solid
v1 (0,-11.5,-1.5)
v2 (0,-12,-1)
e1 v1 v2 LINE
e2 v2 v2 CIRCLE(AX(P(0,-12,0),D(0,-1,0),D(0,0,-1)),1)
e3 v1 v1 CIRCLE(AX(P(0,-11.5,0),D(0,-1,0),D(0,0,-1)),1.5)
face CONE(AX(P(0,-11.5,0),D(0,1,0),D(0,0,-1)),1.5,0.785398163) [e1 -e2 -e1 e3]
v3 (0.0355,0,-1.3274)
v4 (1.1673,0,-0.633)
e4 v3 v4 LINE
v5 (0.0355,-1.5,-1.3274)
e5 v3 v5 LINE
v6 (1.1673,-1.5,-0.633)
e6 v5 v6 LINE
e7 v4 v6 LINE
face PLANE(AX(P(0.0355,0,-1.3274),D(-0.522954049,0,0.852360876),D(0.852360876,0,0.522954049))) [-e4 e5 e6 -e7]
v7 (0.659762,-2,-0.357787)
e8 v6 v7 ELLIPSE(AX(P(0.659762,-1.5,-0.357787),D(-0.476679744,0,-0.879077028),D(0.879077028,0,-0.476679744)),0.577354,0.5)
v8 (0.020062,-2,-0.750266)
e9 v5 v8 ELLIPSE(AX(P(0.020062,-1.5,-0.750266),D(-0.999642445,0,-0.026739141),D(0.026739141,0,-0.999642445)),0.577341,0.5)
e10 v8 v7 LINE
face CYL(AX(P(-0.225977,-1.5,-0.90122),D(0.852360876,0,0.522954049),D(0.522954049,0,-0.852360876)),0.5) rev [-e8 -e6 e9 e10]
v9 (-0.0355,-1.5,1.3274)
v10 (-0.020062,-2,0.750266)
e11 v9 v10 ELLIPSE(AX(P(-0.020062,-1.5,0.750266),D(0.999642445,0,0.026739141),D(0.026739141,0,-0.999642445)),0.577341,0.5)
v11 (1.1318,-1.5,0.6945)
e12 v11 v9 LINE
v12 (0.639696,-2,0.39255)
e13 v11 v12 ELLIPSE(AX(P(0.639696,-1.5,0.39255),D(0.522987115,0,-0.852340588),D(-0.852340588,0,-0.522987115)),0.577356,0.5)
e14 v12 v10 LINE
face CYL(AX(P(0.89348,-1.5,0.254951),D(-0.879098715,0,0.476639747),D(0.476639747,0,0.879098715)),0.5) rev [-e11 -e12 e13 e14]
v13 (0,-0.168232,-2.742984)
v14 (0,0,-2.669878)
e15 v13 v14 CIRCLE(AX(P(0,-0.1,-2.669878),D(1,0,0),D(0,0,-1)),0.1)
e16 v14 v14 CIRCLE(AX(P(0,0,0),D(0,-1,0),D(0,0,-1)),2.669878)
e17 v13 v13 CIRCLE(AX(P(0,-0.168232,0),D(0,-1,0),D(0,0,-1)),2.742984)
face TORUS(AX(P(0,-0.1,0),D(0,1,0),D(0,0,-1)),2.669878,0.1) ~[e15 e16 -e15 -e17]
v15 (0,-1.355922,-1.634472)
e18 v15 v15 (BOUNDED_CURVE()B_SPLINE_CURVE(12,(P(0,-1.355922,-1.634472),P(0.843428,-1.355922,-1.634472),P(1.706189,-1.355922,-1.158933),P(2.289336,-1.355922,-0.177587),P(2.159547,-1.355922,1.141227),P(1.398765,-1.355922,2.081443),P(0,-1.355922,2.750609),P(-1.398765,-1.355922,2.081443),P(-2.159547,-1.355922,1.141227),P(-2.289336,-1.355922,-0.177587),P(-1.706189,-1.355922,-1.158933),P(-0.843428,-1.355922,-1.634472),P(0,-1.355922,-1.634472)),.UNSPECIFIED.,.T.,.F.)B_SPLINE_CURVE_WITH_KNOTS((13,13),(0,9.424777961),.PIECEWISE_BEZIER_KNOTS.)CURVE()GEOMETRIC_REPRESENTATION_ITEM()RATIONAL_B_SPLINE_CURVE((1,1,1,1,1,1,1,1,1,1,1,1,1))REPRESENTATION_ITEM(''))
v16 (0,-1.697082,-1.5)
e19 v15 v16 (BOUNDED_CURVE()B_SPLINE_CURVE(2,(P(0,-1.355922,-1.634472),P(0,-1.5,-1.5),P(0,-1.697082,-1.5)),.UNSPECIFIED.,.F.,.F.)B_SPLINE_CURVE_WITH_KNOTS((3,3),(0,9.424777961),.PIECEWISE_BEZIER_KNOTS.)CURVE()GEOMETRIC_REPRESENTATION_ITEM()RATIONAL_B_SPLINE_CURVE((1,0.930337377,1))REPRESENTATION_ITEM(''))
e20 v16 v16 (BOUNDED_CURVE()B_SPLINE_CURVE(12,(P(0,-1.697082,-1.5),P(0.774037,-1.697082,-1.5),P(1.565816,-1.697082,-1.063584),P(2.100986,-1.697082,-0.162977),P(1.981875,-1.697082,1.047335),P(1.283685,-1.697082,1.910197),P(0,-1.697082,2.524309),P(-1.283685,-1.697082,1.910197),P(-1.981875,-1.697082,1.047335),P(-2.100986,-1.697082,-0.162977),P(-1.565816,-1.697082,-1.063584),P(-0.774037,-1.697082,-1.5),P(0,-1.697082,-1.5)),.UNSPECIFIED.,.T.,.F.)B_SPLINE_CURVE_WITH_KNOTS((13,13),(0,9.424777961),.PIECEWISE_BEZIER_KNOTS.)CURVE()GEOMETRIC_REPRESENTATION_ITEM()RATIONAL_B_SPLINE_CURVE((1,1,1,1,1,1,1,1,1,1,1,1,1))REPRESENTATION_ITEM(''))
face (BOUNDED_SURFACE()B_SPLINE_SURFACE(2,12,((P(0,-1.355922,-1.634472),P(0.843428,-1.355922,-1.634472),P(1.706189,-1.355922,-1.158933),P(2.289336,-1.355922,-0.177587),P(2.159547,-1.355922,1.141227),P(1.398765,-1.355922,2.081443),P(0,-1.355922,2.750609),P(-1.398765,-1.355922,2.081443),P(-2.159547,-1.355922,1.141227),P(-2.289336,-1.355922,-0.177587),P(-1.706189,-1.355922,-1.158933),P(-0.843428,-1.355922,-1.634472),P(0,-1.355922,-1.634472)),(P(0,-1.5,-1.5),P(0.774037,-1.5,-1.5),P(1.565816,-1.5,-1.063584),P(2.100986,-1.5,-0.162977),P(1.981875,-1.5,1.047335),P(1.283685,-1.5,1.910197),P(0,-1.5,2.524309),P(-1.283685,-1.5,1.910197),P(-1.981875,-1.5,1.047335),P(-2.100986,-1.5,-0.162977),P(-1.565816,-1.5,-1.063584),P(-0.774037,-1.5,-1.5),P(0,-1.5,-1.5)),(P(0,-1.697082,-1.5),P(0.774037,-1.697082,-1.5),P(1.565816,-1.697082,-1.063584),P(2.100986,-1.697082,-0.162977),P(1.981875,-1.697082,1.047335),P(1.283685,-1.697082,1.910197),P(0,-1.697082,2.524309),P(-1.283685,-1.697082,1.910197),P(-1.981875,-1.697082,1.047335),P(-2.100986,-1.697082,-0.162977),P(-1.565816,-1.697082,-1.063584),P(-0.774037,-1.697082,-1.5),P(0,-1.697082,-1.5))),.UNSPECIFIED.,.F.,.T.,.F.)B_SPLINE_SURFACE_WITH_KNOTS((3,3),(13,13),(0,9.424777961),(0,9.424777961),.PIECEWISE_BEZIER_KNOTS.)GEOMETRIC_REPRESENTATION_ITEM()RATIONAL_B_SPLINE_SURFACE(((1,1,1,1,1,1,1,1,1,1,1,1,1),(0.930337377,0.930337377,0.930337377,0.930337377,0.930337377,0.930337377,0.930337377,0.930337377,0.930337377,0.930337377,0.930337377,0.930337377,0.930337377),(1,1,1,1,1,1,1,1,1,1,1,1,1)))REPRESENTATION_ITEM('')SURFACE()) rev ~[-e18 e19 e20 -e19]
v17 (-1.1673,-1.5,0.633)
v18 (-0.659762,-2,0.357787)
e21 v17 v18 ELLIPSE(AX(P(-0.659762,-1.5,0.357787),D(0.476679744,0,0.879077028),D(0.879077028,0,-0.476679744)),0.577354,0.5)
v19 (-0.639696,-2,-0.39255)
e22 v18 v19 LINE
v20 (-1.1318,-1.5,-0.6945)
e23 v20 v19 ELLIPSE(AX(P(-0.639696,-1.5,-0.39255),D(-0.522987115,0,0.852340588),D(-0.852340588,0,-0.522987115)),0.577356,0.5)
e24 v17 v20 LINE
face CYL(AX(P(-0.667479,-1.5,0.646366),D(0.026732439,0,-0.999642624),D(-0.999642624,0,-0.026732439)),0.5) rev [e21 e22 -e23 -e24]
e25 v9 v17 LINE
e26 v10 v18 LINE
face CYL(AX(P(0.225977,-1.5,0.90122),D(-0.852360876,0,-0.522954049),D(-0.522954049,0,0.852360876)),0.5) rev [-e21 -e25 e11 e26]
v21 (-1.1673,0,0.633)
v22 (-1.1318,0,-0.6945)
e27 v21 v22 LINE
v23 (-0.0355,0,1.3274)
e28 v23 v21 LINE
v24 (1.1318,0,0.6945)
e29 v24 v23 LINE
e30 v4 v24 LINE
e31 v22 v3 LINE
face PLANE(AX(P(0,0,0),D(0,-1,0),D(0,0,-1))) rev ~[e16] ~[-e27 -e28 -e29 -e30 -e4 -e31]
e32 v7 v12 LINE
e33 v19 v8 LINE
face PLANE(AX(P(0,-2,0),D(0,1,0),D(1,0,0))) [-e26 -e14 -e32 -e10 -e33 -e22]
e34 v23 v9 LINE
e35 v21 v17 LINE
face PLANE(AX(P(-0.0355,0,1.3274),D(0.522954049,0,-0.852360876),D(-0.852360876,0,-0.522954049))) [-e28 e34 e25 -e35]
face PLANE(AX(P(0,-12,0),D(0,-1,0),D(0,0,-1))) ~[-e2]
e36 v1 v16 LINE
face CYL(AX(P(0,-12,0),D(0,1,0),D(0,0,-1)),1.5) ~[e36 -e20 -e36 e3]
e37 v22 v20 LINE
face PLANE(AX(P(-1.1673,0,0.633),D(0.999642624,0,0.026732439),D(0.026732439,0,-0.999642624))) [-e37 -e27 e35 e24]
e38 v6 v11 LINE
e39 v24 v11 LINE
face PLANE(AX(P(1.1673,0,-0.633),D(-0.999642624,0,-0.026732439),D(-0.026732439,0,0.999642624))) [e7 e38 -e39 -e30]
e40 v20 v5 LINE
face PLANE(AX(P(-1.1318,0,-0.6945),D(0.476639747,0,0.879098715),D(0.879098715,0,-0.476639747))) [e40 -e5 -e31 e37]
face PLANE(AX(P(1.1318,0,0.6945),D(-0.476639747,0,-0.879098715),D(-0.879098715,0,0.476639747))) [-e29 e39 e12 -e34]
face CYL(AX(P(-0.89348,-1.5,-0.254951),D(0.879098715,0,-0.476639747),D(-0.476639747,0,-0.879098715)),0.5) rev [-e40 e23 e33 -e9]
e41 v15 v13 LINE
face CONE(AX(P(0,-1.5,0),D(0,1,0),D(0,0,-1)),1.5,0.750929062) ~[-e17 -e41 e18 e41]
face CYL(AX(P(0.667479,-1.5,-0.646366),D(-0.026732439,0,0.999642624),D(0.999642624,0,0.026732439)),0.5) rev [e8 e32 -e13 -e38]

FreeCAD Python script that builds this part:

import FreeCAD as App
import Part
import Sketcher
Q = App.Units.Quantity


def edges_at(feature, points):
    """Names of the edges that pass closest to the given points."""
    edges = feature.Shape.Edges
    near = lambda p: min(range(len(edges)), key=lambda i: edges[i].distToShape(Part.Vertex(*p))[0])
    return sorted({f"Edge{near(p) + 1}" for p in points})

doc = App.newDocument("Part")
params = doc.addObject("Spreadsheet::Sheet", "Params")
for row, (alias, value) in enumerate([
    ("sketch1_width", "12 mm"),
    ("sketch1_height", "1.5 mm"),
    ("sketch1_height2", "2.9 mm"),
    ("revolution_angle", "360 deg"),
    ("pocket1_length", "2 mm"),
    ("fillet_radius", "0.5 mm"),
    ("fillet2_radius", "0.5 mm"),
    ("fillet3_radius", "0.1 mm"),
    ("chamfer_size", "0.5 mm"),
], start=1):
    params.set(f"A{row}", alias)
    params.set(f"B{row}", "=" + value)
    params.setAlias(f"B{row}", alias)

body = doc.addObject("PartDesign::Body", "Body")

# Sketch on YZ plane
sketch1 = body.newObject("Sketcher::SketchObject", "Sketch")
sketch1.AttachmentSupport = (doc.getObject("YZ_Plane"), [""])
sketch1.MapMode = "FlatFace"
sketch1.addGeometry(Part.LineSegment(App.Vector(-1.5, -1.5, 0), App.Vector(0, -2.9, 0)), False)
sketch1.addGeometry(Part.LineSegment(App.Vector(0, -2.9, 0), App.Vector(0, 0, 0)), False)
sketch1.addGeometry(Part.LineSegment(App.Vector(0, 0, 0), App.Vector(-12, 0, 0)), False)
sketch1.addGeometry(Part.LineSegment(App.Vector(-12, 0, 0), App.Vector(-12, -1.5, 0)), False)
sketch1.addGeometry(Part.LineSegment(App.Vector(-12, -1.5, 0), App.Vector(-1.5, -1.5, 0)), False)
sketch1.addConstraint(Sketcher.Constraint("Coincident", 0, 2, 1, 1))
sketch1.addConstraint(Sketcher.Constraint("Coincident", 1, 2, 2, 1))
sketch1.addConstraint(Sketcher.Constraint("Coincident", 2, 2, 3, 1))
sketch1.addConstraint(Sketcher.Constraint("Coincident", 3, 2, 4, 1))
sketch1.addConstraint(Sketcher.Constraint("Coincident", 4, 2, 0, 1))
sketch1.addConstraint(Sketcher.Constraint("Vertical", 1))
sketch1.addConstraint(Sketcher.Constraint("Horizontal", 2))
sketch1.addConstraint(Sketcher.Constraint("Vertical", 3))
sketch1.addConstraint(Sketcher.Constraint("Horizontal", 4))
sketch1.addConstraint(Sketcher.Constraint("Coincident", 1, 2, -1, 1))
sketch1.addConstraint(Sketcher.Constraint("DistanceX", 2, 2, 2, 1, Q("12 mm")))
sketch1.addConstraint(Sketcher.Constraint("DistanceY", 3, 2, 3, 1, Q("1.5 mm")))
sketch1.addConstraint(Sketcher.Constraint("DistanceX", 4, 2, -1, 1, Q("1.5 mm")))
sketch1.addConstraint(Sketcher.Constraint("DistanceY", 1, 1, 1, 2, Q("2.9 mm")))
sketch1.setExpression("Constraints[10]", "Params.sketch1_width")
sketch1.setExpression("Constraints[11]", "Params.sketch1_height")
sketch1.setExpression("Constraints[13]", "Params.sketch1_height2")
revolution = body.newObject("PartDesign::Revolution", "Revolution")
revolution.Profile = sketch1
revolution.ReferenceAxis = (sketch1, ["H_Axis"])
revolution.setExpression("Angle", "Params.revolution_angle")

# Sketch on XZ plane
sketch2 = body.newObject("Sketcher::SketchObject", "Sketch001")
sketch2.AttachmentSupport = (doc.getObject("XZ_Plane"), [""])
sketch2.MapMode = "FlatFace"
sketch2.addGeometry(Part.LineSegment(App.Vector(-1.1318, -0.6945, 0), App.Vector(-1.1673, 0.633, 0)), False)
sketch2.addGeometry(Part.LineSegment(App.Vector(-1.1673, 0.633, 0), App.Vector(-0.0355, 1.3274, 0)), False)
sketch2.addGeometry(Part.LineSegment(App.Vector(-0.0355, 1.3274, 0), App.Vector(1.1318, 0.6945, 0)), False)
sketch2.addGeometry(Part.LineSegment(App.Vector(1.1318, 0.6945, 0), App.Vector(1.1673, -0.633, 0)), False)
sketch2.addGeometry(Part.LineSegment(App.Vector(1.1673, -0.633, 0), App.Vector(0.0355, -1.3274, 0)), False)
sketch2.addGeometry(Part.LineSegment(App.Vector(0.0355, -1.3274, 0), App.Vector(-1.1318, -0.6945, 0)), False)
sketch2.addConstraint(Sketcher.Constraint("Coincident", 0, 2, 1, 1))
sketch2.addConstraint(Sketcher.Constraint("Coincident", 1, 2, 2, 1))
sketch2.addConstraint(Sketcher.Constraint("Coincident", 2, 2, 3, 1))
sketch2.addConstraint(Sketcher.Constraint("Coincident", 3, 2, 4, 1))
sketch2.addConstraint(Sketcher.Constraint("Coincident", 4, 2, 5, 1))
sketch2.addConstraint(Sketcher.Constraint("Coincident", 5, 2, 0, 1))
sketch2.addConstraint(Sketcher.Constraint("Symmetric", 0, 2, 3, 2, -1, 1))
sketch2.addConstraint(Sketcher.Constraint("Symmetric", 1, 2, 4, 2, -1, 1))
sketch2.addConstraint(Sketcher.Constraint("Symmetric", 2, 2, 5, 2, -1, 1))
sketch2.addConstraint(Sketcher.Constraint("Equal", 0, 1))
sketch2.addConstraint(Sketcher.Constraint("Equal", 1, 2))
sketch2.addConstraint(Sketcher.Constraint("Angle", 1, Q("31.5306 deg")))
sketch2.addConstraint(Sketcher.Constraint("Distance", 0, Q("1.328 mm")))
sketch2.addConstraint(Sketcher.Constraint("DistanceY", -1, 1, 0, 2, Q("0.633 mm")))
sketch2.addConstraint(Sketcher.Constraint("DistanceY", 2, 2, 1, 2, Q("0.633 mm")))
pocket1 = body.newObject("PartDesign::Pocket", "Pocket")
pocket1.Profile = sketch2
pocket1.setExpression("Length", "Params.pocket1_length")
pocket1.Reversed = True
doc.recompute()

fillet = body.newObject("PartDesign::Fillet", "Fillet")
fillet.Base = (pocket1, edges_at(pocket1, [
    (-1.15, -2, -0.031),
    (-0.601, -2, 0.98),
    (-0.548, -2, -1.011),
    (0.601, -2, -0.98),
    (0.548, -2, 1.011),
    (1.15, -2, 0.031),
]))
fillet.setExpression("Radius", "Params.fillet_radius")
doc.recompute()

fillet2 = body.newObject("PartDesign::Fillet", "Fillet001")
fillet2.Base = (fillet, edges_at(fillet, [(0, -1.5, 1.5)]))
fillet2.setExpression("Radius", "Params.fillet2_radius")
doc.recompute()

fillet3 = body.newObject("PartDesign::Fillet", "Fillet002")
fillet3.Base = (fillet2, edges_at(fillet2, [(0, 0, 2.9)]))
fillet3.setExpression("Radius", "Params.fillet3_radius")
doc.recompute()

chamfer = body.newObject("PartDesign::Chamfer", "Chamfer")
chamfer.Base = (fillet3, edges_at(fillet3, [(0, -12, 1.5)]))
chamfer.setExpression("Size", "Params.chamfer_size")

doc.recompute()
